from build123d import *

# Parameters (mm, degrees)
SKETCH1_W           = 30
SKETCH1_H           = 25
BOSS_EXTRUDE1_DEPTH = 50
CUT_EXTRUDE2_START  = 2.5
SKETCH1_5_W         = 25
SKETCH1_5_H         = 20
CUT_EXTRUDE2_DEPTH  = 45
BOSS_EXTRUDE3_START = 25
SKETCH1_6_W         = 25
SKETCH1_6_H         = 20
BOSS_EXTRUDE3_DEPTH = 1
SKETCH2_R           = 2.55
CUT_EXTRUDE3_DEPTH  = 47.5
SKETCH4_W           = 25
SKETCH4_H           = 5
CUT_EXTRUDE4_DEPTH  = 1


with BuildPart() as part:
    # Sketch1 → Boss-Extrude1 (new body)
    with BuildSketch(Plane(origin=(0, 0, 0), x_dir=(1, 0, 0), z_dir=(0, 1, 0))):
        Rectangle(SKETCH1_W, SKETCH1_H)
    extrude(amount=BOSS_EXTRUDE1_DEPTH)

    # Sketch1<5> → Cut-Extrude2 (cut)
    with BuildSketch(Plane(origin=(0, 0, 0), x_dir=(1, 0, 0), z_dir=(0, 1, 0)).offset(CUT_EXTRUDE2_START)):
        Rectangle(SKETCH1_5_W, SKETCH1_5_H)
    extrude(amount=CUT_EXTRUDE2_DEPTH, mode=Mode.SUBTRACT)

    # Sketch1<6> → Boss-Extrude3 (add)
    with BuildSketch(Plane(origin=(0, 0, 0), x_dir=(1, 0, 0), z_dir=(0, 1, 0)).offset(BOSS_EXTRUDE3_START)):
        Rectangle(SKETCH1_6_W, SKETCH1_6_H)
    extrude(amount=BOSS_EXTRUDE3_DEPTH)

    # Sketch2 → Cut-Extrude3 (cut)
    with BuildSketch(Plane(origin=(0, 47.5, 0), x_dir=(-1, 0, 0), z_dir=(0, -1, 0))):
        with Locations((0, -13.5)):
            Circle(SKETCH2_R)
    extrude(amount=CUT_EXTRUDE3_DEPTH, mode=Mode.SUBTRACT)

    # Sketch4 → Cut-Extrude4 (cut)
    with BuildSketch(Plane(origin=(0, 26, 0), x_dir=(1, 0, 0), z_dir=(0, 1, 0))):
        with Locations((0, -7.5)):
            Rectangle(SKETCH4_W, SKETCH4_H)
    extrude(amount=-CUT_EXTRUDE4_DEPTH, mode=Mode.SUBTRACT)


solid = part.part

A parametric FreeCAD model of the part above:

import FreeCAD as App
import Part
import Sketcher

V = App.Vector


def add_polygon(sketch, points):
    """Adds a closed chain of lines whose ends are joined by coincident constraints."""
    first, n = sketch.GeometryCount, len(points)
    for a, b in zip(points, points[1:] + points[:1]):
        sketch.addGeometry(Part.LineSegment(App.Vector(*a, 0), App.Vector(*b, 0)), False)
    for i in range(n):
        sketch.addConstraint(Sketcher.Constraint("Coincident", first + i, 2, first + (i + 1) % n, 1))

doc = App.newDocument("Part")
body = doc.addObject("PartDesign::Body", "Body")

# Sketch on XZ plane
sketch1 = body.newObject("Sketcher::SketchObject", "Sketch")
sketch1.AttachmentSupport = (doc.getObject("XZ_Plane"), [""])
sketch1.MapMode = "FlatFace"
add_polygon(sketch1, [(-15, -12.5), (-15, 12.5), (15, 12.5), (15, -12.5)])  # lines 0-3
sketch1.addConstraint(Sketcher.Constraint("Vertical", 0))
sketch1.addConstraint(Sketcher.Constraint("Horizontal", 1))
sketch1.addConstraint(Sketcher.Constraint("Vertical", 2))
sketch1.addConstraint(Sketcher.Constraint("Horizontal", 3))
sketch1.addConstraint(Sketcher.Constraint("Symmetric", 0, 2, 2, 2, -1, 1))
sketch1.addConstraint(Sketcher.Constraint("DistanceX", 1, 1, 1, 2, 30.0))
sketch1.addConstraint(Sketcher.Constraint("DistanceY", 0, 1, 0, 2, 25.0))
pad1 = body.newObject("PartDesign::Pad", "Pad")
pad1.Profile = sketch1
pad1.Length = 50
pad1.Reversed = True

# Sketch on XZ plane
sketch2 = body.newObject("Sketcher::SketchObject", "Sketch001")
sketch2.AttachmentSupport = (doc.getObject("XZ_Plane"), [""])
sketch2.MapMode = "FlatFace"
sketch2.AttachmentOffset = App.Placement(V(0, 0, -2.5), App.Rotation())
add_polygon(sketch2, [(-12.5, -10), (-12.5, 10), (12.5, 10), (12.5, -10)])  # lines 0-3
sketch2.addConstraint(Sketcher.Constraint("Vertical", 0))
sketch2.addConstraint(Sketcher.Constraint("Horizontal", 1))
sketch2.addConstraint(Sketcher.Constraint("Vertical", 2))
sketch2.addConstraint(Sketcher.Constraint("Horizontal", 3))
sketch2.addConstraint(Sketcher.Constraint("Symmetric", 0, 2, 2, 2, -1, 1))
sketch2.addConstraint(Sketcher.Constraint("DistanceX", 1, 1, 1, 2, 25.0))
sketch2.addConstraint(Sketcher.Constraint("DistanceY", 0, 1, 0, 2, 20.0))
pocket1 = body.newObject("PartDesign::Pocket", "Pocket")
pocket1.Profile = sketch2
pocket1.Length = 45

# Sketch on XZ plane
sketch3 = body.newObject("Sketcher::SketchObject", "Sketch002")
sketch3.AttachmentSupport = (doc.getObject("XZ_Plane"), [""])
sketch3.MapMode = "FlatFace"
sketch3.AttachmentOffset = App.Placement(V(0, 0, -25), App.Rotation())
add_polygon(sketch3, [(-12.5, -10), (-12.5, 10), (12.5, 10), (12.5, -10)])  # lines 0-3
sketch3.addConstraint(Sketcher.Constraint("Vertical", 0))
sketch3.addConstraint(Sketcher.Constraint("Horizontal", 1))
sketch3.addConstraint(Sketcher.Constraint("Vertical", 2))
sketch3.addConstraint(Sketcher.Constraint("Horizontal", 3))
sketch3.addConstraint(Sketcher.Constraint("Symmetric", 0, 2, 2, 2, -1, 1))
sketch3.addConstraint(Sketcher.Constraint("DistanceX", 1, 1, 1, 2, 25.0))
sketch3.addConstraint(Sketcher.Constraint("DistanceY", 0, 1, 0, 2, 20.0))
pad2 = body.newObject("PartDesign::Pad", "Pad001")
pad2.Profile = sketch3
pad2.Length = 1
pad2.Reversed = True

# Sketch on XZ plane
sketch4 = body.newObject("Sketcher::SketchObject", "Sketch003")
sketch4.AttachmentSupport = (doc.getObject("XZ_Plane"), [""])
sketch4.MapMode = "FlatFace"
sketch4.AttachmentOffset = App.Placement(V(0, 0, -47.5), App.Rotation())
sketch4.addGeometry(Part.Circle(V(0, 13.5, 0), V(0, 0, 1), 2.55), False)
sketch4.addConstraint(Sketcher.Constraint("PointOnObject", 0, 3, -2))
sketch4.addConstraint(Sketcher.Constraint("Diameter", 0, 5.1))
sketch4.addConstraint(Sketcher.Constraint("DistanceY", -1, 1, 0, 3, 13.5))
pocket2 = body.newObject("PartDesign::Pocket", "Pocket001")
pocket2.Profile = sketch4
pocket2.Length = 47.5
pocket2.Reversed = True

# Sketch on XZ plane
sketch5 = body.newObject("Sketcher::SketchObject", "Sketch004")
sketch5.AttachmentSupport = (doc.getObject("XZ_Plane"), [""])
sketch5.MapMode = "FlatFace"
sketch5.AttachmentOffset = App.Placement(V(0, 0, -26), App.Rotation())
add_polygon(sketch5, [(-12.5, 5), (-12.5, 10), (12.5, 10), (12.5, 5)])  # lines 0-3
sketch5.addConstraint(Sketcher.Constraint("Vertical", 0))
sketch5.addConstraint(Sketcher.Constraint("Horizontal", 1))
sketch5.addConstraint(Sketcher.Constraint("Vertical", 2))
sketch5.addConstraint(Sketcher.Constraint("Horizontal", 3))
sketch5.addConstraint(Sketcher.Constraint("DistanceX", 1, 1, 1, 2, 25.0))
sketch5.addConstraint(Sketcher.Constraint("DistanceY", 0, 1, 0, 2, 5.0))
sketch5.addConstraint(Sketcher.Constraint("DistanceY", -1, 1, 0, 2, 10.0))
sketch5.addConstraint(Sketcher.Constraint("DistanceX", 0, 2, -1, 1, 12.5))
pocket3 = body.newObject("PartDesign::Pocket", "Pocket002")
pocket3.Profile = sketch5
pocket3.Length = 1
pocket3.Reversed = True

doc.recompute()
